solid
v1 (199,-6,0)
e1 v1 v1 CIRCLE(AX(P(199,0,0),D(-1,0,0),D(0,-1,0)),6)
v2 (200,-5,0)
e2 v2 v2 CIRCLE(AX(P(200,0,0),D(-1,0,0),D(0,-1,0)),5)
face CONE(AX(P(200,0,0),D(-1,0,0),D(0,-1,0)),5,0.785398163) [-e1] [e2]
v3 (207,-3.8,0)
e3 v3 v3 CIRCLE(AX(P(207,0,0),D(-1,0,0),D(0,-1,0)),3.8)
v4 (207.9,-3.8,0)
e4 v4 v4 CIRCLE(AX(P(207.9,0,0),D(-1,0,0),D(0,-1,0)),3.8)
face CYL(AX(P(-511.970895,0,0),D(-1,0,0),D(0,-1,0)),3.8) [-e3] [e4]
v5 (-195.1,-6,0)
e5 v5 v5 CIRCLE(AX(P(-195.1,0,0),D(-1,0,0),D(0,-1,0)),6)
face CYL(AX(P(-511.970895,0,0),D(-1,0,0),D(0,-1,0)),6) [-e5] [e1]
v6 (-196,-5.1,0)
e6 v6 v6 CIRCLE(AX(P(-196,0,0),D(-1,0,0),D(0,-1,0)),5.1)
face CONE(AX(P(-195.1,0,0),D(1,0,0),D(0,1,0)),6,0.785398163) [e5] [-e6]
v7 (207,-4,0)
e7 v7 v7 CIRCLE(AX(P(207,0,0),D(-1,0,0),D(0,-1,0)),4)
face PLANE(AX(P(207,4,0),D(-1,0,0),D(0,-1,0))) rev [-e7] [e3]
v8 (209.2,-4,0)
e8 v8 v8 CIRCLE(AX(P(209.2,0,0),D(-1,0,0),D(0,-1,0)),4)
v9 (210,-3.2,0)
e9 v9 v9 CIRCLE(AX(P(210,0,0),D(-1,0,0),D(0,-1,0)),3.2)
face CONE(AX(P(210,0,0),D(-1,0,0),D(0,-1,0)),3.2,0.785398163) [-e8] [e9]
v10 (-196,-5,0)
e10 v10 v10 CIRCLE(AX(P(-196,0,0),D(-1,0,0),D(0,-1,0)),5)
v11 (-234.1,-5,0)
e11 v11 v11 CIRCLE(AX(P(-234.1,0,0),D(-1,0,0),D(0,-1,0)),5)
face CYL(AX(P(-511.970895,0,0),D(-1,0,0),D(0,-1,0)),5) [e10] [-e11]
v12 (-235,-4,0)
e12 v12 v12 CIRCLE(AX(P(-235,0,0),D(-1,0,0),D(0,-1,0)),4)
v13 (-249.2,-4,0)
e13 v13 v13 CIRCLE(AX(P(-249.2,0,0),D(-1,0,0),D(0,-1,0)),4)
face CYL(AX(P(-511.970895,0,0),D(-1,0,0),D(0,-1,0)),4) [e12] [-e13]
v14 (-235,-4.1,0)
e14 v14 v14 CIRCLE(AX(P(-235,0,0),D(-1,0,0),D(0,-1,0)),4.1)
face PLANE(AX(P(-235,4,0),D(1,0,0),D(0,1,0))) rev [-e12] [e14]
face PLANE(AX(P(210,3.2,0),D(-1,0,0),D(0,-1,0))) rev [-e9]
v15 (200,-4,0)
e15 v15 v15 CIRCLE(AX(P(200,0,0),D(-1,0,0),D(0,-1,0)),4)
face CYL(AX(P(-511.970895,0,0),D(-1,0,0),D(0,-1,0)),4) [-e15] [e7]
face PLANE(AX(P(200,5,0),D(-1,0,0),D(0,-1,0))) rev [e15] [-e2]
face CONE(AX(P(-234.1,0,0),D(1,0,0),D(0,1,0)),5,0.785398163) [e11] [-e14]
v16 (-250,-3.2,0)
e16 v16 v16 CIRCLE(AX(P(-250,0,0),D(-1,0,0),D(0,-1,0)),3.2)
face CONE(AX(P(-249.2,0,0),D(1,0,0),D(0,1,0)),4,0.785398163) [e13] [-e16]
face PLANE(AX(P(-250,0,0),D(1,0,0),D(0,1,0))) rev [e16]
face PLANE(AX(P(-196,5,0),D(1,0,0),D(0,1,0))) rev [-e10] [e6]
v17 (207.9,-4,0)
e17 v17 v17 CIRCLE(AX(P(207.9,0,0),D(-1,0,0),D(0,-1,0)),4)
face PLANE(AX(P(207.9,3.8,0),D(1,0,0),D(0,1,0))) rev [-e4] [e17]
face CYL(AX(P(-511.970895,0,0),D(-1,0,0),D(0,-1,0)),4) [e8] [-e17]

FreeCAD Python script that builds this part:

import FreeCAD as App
import Part
import Sketcher
from FreeCAD import Vector
Q = App.Units.Quantity


def add_polygon(sketch, points):
    """Adds a closed chain of lines whose ends are joined by coincident constraints."""
    first, n = sketch.GeometryCount, len(points)
    for a, b in zip(points, points[1:] + points[:1]):
        sketch.addGeometry(Part.LineSegment(App.Vector(*a, 0), App.Vector(*b, 0)), False)
    for i in range(n):
        sketch.addConstraint(Sketcher.Constraint("Coincident", first + i, 2, first + (i + 1) % n, 1))

doc = App.newDocument("Part")
body = doc.addObject("PartDesign::Body", "Body")

# Sketch on XY plane
sketch1 = body.newObject("Sketcher::SketchObject", "Sketch")
sketch1.AttachmentSupport = (doc.getObject("XY_Plane"), [""])
sketch1.MapMode = "FlatFace"
add_polygon(sketch1, [(-250, 3.2), (-250, 0), (210, 0), (210, 3.2), (209.2, 4), (207.9, 4), (207.9, 3.8), (207, 3.8), (207, 4), (200, 4), (200, 5), (199, 6), (-195.1, 6), (-196, 5.1), (-196, 5), (-234.1, 5), (-235, 4.1), (-235, 4), (-249.2, 4)])  # lines 0-18
sketch1.addConstraint([
    Sketcher.Constraint("Vertical", 0),
    Sketcher.Constraint("Horizontal", 1),
    Sketcher.Constraint("Vertical", 2),
    Sketcher.Constraint("Horizontal", 4),
    Sketcher.Constraint("Vertical", 5),
    Sketcher.Constraint("Horizontal", 6),
    Sketcher.Constraint("Vertical", 7),
    Sketcher.Constraint("Horizontal", 8),
    Sketcher.Constraint("Vertical", 9),
    Sketcher.Constraint("Horizontal", 11),
    Sketcher.Constraint("Vertical", 13),
    Sketcher.Constraint("Horizontal", 14),
    Sketcher.Constraint("Vertical", 16),
    Sketcher.Constraint("Horizontal", 17),
    Sketcher.Constraint("PointOnObject", 0, 2, -1),
    Sketcher.Constraint("Parallel", 3, 10),
    Sketcher.Constraint("Perpendicular", 10, 12),
    Sketcher.Constraint("Parallel", 12, 15),
    Sketcher.Constraint("Parallel", 15, 18),
    Sketcher.Constraint("Horizontal", 4, 2, 7, 2),
    Sketcher.Constraint("Horizontal", 9, 2, 13, 2),
    Sketcher.Constraint("Horizontal", 8, 2, 16, 2),
    Sketcher.Constraint("Horizontal", 2, 2, 18, 2),
    Sketcher.Constraint("Equal", 13, 16),
    Sketcher.Constraint("Equal", 12, 15),
    Sketcher.Constraint("Equal", 3, 18),
    Sketcher.Constraint("DistanceX", 1, 1, 1, 2, Q("460 mm")),
    Sketcher.Constraint("DistanceX", 8, 2, 8, 1, Q("7 mm")),
    Sketcher.Constraint("DistanceY", 9, 1, 9, 2, Q("1 mm")),
    Sketcher.Constraint("DistanceX", 4, 2, 4, 1, Q("1.3 mm")),
    Sketcher.Constraint("DistanceX", 6, 2, 6, 1, Q("0.9 mm")),
    Sketcher.Constraint("DistanceX", 11, 2, 11, 1, Q("394.1 mm")),
    Sketcher.Constraint("DistanceX", 14, 2, 14, 1, Q("38.1 mm")),
    Sketcher.Constraint("DistanceX", 17, 2, 17, 1, Q("14.2 mm")),
    Sketcher.Constraint("DistanceY", 0, 2, 0, 1, Q("3.2 mm")),
    Sketcher.Constraint("DistanceY", 5, 2, 5, 1, Q("0.2 mm")),
    Sketcher.Constraint("DistanceY", 13, 2, 13, 1, Q("0.1 mm")),
    Sketcher.Constraint("DistanceX", 0, 2, -1, 1, Q("250 mm")),
])
revolution = body.newObject("PartDesign::Revolution", "Revolution")
revolution.Profile = sketch1
revolution.ReferenceAxis = (sketch1, ["H_Axis"])
revolution.Angle = 360

doc.recompute()
